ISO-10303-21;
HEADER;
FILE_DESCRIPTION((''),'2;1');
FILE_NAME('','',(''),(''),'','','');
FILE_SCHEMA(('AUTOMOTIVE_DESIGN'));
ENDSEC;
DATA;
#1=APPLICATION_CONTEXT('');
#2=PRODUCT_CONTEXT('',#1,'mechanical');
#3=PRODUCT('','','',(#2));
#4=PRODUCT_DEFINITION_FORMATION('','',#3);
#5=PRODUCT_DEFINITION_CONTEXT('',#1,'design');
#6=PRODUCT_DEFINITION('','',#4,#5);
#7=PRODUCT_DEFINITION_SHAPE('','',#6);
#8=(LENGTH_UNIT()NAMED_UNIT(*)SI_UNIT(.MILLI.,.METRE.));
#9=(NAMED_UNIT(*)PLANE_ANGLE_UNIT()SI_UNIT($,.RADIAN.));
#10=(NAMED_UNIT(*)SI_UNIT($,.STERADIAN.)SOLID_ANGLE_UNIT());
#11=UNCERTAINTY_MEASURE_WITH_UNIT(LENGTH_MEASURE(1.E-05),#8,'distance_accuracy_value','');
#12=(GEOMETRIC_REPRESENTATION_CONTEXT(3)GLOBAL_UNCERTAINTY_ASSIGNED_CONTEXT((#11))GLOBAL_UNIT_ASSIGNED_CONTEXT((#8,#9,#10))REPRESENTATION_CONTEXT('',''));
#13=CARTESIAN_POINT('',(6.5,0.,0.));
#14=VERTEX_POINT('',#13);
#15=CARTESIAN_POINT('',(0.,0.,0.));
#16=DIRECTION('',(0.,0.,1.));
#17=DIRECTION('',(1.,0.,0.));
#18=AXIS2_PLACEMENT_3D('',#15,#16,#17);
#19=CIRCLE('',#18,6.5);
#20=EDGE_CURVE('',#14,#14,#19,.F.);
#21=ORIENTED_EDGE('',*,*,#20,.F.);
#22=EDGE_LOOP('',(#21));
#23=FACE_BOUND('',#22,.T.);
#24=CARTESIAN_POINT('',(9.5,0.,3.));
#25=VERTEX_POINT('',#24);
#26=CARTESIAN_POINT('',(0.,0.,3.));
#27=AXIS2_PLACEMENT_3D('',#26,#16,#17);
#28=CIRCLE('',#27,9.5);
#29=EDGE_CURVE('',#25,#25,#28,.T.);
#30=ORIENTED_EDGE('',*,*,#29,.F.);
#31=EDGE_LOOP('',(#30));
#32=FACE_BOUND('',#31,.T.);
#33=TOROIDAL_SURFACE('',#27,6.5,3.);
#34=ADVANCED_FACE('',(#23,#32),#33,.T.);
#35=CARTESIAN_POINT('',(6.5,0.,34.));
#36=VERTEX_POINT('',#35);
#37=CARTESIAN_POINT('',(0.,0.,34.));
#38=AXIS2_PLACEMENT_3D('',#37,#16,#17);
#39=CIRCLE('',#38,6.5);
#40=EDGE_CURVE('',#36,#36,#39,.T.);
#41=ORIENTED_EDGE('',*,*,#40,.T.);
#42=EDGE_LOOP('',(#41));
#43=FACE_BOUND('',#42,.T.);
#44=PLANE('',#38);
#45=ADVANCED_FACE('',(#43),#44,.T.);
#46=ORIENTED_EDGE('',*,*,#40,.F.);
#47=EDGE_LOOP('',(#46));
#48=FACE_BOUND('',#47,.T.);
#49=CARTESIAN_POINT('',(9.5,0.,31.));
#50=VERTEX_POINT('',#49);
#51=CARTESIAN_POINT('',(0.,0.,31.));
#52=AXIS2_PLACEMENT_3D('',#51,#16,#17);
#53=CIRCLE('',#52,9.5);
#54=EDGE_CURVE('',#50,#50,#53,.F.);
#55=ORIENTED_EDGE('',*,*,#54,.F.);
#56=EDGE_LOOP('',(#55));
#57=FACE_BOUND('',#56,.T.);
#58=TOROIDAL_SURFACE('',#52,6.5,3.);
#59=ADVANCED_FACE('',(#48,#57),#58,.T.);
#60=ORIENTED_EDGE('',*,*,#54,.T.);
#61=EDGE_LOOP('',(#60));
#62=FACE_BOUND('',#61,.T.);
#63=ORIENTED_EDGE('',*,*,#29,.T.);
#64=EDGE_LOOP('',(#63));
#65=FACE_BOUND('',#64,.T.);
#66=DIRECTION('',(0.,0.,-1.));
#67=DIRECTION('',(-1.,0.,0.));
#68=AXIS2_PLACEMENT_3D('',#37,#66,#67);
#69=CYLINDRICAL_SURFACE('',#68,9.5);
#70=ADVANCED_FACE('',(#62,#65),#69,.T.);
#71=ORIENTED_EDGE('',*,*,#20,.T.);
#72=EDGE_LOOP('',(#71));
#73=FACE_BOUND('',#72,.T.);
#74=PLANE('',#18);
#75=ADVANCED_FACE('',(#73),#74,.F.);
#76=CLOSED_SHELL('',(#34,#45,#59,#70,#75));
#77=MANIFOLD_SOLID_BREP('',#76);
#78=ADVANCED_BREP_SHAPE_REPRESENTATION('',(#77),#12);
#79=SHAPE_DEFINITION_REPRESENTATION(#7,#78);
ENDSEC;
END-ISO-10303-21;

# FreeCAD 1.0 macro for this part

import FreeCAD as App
import Part
import Sketcher
Q = App.Units.Quantity


def edges_at(feature, points):
    """Names of the edges that pass closest to the given points."""
    edges = feature.Shape.Edges
    near = lambda p: min(range(len(edges)), key=lambda i: edges[i].distToShape(Part.Vertex(*p))[0])
    return sorted({f"Edge{near(p) + 1}" for p in points})

doc = App.newDocument("Part")
body = doc.addObject("PartDesign::Body", "Body")

sketch1 = body.newObject("Sketcher::SketchObject", "Sketch")
sketch1.AttachmentSupport = (doc.getObject("XY_Plane"), [""])
sketch1.MapMode = "FlatFace"
sketch1.addGeometry(Part.Circle(App.Vector(0, 0, 0), App.Vector(0, 0, 1), 10), False)
sketch1.addConstraint([
    Sketcher.Constraint("Coincident", 0, 3, -1, 1),
    Sketcher.Constraint("Diameter", 0, Q("19 mm")),
])
pad1 = body.newObject("PartDesign::Pad", "Pad")
pad1.Profile = sketch1
pad1.Length = 34
doc.recompute()

fillet = body.newObject("PartDesign::Fillet", "Fillet")
fillet.Base = (pad1, edges_at(pad1, [(-9.5, 0, 0), (-9.5, 0, 34)]))
fillet.Radius = 3

doc.recompute()
